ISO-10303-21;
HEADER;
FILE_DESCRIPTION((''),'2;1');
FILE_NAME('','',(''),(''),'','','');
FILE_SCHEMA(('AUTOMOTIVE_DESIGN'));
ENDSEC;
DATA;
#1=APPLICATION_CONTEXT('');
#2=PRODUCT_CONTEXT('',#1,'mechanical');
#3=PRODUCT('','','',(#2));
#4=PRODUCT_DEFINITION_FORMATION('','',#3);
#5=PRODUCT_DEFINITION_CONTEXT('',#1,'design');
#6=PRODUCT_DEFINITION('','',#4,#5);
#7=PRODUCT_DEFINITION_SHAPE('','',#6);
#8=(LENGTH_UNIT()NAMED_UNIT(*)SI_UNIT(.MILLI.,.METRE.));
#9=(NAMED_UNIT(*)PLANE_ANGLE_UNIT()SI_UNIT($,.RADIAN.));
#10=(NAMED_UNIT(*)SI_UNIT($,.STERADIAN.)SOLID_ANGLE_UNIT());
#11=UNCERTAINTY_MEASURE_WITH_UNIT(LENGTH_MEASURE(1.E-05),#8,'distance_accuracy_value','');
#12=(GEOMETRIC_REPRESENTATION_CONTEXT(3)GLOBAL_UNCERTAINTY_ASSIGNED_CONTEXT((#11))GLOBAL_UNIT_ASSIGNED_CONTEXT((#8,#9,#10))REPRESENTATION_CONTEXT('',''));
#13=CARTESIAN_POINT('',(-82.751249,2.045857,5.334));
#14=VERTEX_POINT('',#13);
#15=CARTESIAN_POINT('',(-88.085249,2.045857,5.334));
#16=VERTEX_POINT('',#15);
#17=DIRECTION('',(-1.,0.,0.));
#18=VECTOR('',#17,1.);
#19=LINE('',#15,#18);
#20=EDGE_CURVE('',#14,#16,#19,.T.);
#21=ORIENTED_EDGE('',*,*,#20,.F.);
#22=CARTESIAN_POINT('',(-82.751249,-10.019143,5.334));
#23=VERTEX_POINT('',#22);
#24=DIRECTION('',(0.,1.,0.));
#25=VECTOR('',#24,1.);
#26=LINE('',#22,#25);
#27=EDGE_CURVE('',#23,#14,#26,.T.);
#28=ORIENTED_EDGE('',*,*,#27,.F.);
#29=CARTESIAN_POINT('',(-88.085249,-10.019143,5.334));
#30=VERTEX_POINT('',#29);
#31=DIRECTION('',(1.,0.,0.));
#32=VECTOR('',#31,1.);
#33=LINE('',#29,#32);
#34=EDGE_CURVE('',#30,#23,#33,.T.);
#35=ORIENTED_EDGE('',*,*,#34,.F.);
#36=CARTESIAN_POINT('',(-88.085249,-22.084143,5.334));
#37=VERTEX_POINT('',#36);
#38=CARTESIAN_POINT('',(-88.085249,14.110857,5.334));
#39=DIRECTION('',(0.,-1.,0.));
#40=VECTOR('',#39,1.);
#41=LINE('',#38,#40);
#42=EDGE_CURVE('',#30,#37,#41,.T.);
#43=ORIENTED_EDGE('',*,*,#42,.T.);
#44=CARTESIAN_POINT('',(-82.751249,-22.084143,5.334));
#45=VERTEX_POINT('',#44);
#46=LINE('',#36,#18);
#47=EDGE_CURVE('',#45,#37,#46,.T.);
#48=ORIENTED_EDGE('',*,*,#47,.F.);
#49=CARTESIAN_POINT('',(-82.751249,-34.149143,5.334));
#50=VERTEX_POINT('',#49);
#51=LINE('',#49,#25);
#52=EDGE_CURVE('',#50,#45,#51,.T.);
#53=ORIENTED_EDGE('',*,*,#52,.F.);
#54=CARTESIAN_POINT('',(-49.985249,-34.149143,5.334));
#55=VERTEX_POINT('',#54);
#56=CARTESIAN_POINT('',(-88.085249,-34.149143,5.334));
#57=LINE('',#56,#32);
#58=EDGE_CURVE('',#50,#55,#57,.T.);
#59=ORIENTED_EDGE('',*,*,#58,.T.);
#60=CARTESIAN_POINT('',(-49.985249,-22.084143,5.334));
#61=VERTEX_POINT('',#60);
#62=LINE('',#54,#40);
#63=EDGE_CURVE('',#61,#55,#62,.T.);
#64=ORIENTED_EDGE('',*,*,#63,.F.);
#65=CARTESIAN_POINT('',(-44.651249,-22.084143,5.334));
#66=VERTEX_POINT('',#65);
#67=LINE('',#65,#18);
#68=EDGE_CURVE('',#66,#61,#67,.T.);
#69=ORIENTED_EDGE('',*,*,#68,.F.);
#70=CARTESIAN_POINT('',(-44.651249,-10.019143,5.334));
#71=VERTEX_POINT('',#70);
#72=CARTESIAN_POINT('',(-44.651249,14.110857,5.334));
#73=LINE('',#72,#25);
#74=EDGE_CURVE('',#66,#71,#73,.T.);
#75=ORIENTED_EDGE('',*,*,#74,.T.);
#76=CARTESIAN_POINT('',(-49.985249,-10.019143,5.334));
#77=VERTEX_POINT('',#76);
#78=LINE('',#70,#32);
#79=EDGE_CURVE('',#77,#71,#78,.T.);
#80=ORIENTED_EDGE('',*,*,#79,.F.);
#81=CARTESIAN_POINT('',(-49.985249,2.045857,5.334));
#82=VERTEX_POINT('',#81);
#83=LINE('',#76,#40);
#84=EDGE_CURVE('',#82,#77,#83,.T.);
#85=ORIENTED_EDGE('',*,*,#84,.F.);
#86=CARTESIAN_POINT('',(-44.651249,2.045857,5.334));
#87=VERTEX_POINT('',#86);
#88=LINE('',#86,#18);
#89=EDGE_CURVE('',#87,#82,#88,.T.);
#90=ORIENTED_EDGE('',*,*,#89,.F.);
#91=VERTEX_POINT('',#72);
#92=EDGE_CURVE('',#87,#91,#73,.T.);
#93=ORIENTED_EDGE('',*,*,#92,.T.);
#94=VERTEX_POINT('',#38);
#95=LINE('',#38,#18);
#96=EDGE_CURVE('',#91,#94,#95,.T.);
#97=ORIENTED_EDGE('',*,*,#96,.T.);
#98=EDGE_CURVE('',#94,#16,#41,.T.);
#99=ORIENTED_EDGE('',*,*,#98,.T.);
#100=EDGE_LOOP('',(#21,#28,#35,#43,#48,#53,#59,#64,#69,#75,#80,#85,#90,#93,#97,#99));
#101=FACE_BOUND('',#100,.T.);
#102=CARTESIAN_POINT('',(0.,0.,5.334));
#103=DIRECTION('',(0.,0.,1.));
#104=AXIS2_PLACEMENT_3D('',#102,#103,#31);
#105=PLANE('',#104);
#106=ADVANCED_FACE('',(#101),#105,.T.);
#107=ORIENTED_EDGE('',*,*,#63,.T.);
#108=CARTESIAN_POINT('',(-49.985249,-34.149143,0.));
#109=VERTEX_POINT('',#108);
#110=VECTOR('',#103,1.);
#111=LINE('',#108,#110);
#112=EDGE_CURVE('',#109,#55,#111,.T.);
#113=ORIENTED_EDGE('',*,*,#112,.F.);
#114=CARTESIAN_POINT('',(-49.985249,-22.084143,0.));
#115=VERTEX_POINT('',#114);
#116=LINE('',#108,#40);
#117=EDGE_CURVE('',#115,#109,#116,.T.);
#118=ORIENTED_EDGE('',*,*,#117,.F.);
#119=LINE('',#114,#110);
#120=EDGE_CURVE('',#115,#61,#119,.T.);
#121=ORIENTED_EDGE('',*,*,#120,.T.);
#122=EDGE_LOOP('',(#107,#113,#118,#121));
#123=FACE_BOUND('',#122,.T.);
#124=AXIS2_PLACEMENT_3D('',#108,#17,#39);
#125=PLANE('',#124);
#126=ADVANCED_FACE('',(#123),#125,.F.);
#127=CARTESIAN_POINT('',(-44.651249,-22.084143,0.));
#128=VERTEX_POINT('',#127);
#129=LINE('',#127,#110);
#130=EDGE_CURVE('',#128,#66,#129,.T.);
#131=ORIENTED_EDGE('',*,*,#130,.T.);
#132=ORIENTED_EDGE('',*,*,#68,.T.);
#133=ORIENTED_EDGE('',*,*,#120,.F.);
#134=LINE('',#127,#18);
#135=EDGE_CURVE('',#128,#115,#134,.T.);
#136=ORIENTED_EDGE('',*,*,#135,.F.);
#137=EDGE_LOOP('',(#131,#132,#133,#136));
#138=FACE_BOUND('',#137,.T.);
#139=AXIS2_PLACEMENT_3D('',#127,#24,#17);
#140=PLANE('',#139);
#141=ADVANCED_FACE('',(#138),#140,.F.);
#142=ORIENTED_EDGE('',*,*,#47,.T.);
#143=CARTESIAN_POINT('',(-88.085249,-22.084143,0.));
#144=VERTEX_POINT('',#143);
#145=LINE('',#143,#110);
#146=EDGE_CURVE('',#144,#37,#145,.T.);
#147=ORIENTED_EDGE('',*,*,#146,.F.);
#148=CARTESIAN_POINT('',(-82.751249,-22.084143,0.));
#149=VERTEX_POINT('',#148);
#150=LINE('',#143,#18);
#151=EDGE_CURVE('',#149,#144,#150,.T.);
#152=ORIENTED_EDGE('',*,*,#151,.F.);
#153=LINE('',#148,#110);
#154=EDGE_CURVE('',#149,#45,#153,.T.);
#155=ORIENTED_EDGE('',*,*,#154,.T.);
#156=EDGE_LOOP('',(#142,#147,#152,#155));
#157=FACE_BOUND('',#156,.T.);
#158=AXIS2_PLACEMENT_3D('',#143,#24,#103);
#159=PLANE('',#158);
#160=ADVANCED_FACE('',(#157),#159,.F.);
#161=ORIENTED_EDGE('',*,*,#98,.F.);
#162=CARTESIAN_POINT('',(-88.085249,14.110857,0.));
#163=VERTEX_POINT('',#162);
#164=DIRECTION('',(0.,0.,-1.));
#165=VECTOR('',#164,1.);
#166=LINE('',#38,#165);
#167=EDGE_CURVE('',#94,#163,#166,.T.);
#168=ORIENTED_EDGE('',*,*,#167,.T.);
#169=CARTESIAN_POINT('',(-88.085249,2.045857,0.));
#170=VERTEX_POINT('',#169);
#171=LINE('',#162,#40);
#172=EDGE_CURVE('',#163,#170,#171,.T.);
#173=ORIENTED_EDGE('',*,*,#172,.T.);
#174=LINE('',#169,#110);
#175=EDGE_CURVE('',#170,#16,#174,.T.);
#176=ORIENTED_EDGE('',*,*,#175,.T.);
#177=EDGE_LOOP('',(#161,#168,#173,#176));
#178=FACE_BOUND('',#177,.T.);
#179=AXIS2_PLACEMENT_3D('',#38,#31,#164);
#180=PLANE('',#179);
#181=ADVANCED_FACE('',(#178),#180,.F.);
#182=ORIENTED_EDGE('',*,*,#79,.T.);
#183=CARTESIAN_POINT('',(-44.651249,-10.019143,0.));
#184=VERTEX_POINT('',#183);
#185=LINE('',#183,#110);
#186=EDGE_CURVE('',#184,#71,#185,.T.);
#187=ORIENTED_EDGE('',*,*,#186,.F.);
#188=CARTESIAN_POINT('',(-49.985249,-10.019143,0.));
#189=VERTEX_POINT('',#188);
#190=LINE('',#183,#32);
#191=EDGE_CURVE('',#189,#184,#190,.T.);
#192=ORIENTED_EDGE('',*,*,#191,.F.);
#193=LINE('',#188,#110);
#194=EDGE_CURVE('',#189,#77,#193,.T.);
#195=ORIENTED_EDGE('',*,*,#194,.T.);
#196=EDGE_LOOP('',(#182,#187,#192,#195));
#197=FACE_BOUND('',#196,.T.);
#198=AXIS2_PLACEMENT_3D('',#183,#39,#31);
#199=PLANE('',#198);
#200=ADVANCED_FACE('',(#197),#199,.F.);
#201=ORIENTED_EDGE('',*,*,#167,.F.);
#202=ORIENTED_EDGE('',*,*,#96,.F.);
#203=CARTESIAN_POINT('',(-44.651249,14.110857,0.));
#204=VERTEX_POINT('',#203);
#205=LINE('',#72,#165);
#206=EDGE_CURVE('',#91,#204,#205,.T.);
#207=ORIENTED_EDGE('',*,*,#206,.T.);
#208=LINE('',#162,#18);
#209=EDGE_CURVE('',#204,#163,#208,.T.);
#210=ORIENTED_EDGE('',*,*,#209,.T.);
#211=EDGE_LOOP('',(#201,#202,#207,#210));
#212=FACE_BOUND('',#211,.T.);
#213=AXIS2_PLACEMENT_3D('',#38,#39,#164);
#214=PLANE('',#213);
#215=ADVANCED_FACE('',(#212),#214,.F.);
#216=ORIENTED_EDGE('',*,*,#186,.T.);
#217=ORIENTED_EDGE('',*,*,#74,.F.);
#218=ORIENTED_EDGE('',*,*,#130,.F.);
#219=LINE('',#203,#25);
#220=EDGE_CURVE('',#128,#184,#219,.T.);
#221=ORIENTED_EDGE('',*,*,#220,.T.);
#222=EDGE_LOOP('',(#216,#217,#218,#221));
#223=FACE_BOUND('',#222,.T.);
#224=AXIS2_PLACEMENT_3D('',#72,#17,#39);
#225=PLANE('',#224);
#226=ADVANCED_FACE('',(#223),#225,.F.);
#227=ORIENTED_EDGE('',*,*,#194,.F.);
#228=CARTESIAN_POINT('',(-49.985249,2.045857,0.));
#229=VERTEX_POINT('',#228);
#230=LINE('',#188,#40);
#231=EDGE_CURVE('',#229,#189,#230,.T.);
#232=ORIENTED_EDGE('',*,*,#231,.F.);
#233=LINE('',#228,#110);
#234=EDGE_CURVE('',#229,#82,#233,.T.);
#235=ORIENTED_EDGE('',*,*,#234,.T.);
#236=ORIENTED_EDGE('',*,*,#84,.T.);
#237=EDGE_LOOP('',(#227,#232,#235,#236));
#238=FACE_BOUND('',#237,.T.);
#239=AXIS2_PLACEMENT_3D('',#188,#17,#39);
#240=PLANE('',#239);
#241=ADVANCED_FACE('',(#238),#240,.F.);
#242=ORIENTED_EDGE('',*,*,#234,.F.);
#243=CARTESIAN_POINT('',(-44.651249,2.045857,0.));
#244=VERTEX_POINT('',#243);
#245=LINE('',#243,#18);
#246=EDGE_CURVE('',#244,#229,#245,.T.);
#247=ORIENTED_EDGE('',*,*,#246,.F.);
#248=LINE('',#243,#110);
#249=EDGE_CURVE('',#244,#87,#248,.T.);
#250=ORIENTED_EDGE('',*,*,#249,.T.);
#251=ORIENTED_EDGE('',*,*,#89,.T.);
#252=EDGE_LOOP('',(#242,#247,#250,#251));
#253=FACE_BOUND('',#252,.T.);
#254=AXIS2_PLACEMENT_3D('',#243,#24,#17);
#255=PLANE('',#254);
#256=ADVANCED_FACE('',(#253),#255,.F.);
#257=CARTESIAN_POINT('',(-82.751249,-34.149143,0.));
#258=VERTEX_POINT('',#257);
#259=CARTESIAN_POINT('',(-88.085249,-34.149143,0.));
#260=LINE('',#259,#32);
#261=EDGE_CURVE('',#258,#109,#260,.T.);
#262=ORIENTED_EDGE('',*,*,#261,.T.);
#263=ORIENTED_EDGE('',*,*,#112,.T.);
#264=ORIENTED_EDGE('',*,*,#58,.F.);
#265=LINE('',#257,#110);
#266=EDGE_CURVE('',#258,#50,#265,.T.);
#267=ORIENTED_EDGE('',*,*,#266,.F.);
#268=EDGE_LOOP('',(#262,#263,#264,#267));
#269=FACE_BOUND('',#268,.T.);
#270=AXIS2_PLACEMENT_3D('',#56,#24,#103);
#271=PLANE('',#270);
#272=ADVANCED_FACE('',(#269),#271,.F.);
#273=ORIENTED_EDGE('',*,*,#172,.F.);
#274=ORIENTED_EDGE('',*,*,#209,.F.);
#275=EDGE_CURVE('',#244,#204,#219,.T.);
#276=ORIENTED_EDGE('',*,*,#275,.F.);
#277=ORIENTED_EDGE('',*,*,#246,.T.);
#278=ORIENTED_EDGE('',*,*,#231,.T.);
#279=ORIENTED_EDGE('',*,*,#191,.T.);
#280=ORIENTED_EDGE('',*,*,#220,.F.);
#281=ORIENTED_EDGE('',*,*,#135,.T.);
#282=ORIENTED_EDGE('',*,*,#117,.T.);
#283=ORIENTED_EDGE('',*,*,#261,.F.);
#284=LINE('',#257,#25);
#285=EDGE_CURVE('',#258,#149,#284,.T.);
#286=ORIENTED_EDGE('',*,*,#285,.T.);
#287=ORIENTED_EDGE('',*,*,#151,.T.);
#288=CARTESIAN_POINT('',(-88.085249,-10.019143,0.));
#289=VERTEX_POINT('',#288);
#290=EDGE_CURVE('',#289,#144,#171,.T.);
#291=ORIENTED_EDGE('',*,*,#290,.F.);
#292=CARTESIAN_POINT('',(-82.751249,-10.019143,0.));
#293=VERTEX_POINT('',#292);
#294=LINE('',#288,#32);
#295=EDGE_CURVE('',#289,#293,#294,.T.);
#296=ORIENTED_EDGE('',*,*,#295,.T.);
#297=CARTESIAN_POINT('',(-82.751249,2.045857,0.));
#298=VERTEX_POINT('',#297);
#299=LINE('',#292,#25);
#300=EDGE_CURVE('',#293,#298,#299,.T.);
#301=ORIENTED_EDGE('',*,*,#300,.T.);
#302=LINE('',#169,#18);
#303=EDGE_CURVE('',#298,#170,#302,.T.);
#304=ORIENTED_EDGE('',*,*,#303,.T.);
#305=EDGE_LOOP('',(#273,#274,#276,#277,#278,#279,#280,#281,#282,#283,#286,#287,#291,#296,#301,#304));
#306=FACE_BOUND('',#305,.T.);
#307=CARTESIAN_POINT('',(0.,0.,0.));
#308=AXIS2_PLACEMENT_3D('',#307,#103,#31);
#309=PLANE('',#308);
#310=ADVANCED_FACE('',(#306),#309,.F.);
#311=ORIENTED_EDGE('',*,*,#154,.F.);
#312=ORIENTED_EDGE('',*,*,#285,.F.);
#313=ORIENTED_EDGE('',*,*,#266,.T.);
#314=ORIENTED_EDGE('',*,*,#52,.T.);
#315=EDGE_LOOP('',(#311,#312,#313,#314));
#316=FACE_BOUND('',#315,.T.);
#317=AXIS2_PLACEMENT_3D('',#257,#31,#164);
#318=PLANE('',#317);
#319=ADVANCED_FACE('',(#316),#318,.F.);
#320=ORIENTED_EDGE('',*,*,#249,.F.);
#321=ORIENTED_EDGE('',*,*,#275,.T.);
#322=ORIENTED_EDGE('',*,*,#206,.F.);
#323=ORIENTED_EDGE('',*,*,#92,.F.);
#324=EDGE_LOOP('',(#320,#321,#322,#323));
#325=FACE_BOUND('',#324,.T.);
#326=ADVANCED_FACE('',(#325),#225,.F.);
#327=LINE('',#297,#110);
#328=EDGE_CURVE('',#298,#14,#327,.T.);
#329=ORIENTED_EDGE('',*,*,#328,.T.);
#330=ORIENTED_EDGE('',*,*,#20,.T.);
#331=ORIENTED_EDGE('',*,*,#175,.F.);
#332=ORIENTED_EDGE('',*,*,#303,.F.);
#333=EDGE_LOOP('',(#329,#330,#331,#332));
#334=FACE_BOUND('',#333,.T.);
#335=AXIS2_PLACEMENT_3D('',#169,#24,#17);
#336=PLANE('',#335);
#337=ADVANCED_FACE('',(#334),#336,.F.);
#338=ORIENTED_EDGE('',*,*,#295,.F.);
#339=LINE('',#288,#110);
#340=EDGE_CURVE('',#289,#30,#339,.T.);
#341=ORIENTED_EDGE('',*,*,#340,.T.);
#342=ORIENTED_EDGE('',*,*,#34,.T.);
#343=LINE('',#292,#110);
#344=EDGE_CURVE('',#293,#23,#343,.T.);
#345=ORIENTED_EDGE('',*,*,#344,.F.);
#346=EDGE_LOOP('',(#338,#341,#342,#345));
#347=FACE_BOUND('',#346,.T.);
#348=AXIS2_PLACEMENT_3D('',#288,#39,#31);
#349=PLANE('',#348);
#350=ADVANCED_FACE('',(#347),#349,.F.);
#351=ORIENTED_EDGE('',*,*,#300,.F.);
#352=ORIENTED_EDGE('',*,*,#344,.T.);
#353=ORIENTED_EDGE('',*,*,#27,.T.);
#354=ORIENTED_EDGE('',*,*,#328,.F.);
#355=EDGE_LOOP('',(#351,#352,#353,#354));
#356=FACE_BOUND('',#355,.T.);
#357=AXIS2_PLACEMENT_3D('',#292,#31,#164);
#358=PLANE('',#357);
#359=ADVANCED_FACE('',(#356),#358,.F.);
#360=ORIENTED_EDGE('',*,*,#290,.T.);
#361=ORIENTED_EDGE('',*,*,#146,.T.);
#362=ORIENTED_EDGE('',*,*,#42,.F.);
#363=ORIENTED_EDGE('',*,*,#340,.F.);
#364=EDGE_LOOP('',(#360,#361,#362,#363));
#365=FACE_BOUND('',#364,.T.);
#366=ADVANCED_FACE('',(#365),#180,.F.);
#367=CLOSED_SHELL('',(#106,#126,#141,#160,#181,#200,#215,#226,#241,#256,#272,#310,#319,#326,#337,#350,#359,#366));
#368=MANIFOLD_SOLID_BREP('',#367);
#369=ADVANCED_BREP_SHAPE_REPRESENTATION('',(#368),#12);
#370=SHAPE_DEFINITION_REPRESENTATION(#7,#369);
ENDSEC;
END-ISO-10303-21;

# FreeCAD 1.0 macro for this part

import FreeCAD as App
import Part
import Sketcher
Q = App.Units.Quantity

doc = App.newDocument("Part")
params = doc.addObject("Spreadsheet::Sheet", "Params")
for row, (alias, value) in enumerate([
    ("sketch1_height", "1.9 in"),
    ("sketch1_width", "1.71 in"),
    ("pad1_length", "0.21 in"),
    ("sketch2_width", "0.21 in"),
    ("sketch2_height", "0.475 in"),
], start=1):
    params.set(f"A{row}", alias)
    params.set(f"B{row}", "=" + value)
    params.setAlias(f"B{row}", alias)

body = doc.addObject("PartDesign::Body", "Body")

# Sketch on XY plane
sketch1 = body.newObject("Sketcher::SketchObject", "Sketch")
sketch1.AttachmentSupport = (doc.getObject("XY_Plane"), [""])
sketch1.MapMode = "FlatFace"
sketch1.addGeometry([
    Part.LineSegment(App.Vector(-88.085249, 14.110857, 0), App.Vector(-88.085249, -34.149143, 0)),
    Part.LineSegment(App.Vector(-88.085249, -34.149143, 0), App.Vector(-44.651249, -34.149143, 0)),
    Part.LineSegment(App.Vector(-44.651249, -34.149143, 0), App.Vector(-44.651249, 14.110857, 0)),
    Part.LineSegment(App.Vector(-44.651249, 14.110857, 0), App.Vector(-88.085249, 14.110857, 0)),
], False)
sketch1.addConstraint([
    Sketcher.Constraint("Coincident", 0, 2, 1, 1),
    Sketcher.Constraint("Coincident", 1, 2, 2, 1),
    Sketcher.Constraint("Coincident", 2, 2, 3, 1),
    Sketcher.Constraint("Coincident", 3, 2, 0, 1),
    Sketcher.Constraint("Vertical", 0),
    Sketcher.Constraint("Horizontal", 1),
    Sketcher.Constraint("Vertical", 2),
    Sketcher.Constraint("Horizontal", 3),
    Sketcher.Constraint("DistanceY", 0, 2, 0, 1, Q("1.9 in")),
    Sketcher.Constraint("DistanceX", 1, 1, 1, 2, Q("1.71 in")),
    Sketcher.Constraint("DistanceX", 0, 2, -1, 1, 88.085249),
    Sketcher.Constraint("DistanceY", 0, 2, -1, 1, 34.149143),
])
sketch1.setExpression("Constraints[8]", "Params.sketch1_height")
sketch1.setExpression("Constraints[9]", "Params.sketch1_width")
pad1 = body.newObject("PartDesign::Pad", "Pad")
pad1.Profile = sketch1
pad1.setExpression("Length", "Params.pad1_length")

# Sketch on XY plane
sketch2 = body.newObject("Sketcher::SketchObject", "Sketch001")
sketch2.AttachmentSupport = (doc.getObject("XY_Plane"), [""])
sketch2.MapMode = "FlatFace"
sketch2.AttachmentOffset = App.Placement(App.Vector(0, 0, 0.21 * 25.4), App.Rotation())
sketch2.addGeometry([
    Part.LineSegment(App.Vector(-88.085249, -22.084143, 0), App.Vector(-88.085249, -34.149143, 0)),  # 0
    Part.LineSegment(App.Vector(-88.085249, -34.149143, 0), App.Vector(-82.751249, -34.149143, 0)),  # 1
    Part.LineSegment(App.Vector(-82.751249, -34.149143, 0), App.Vector(-82.751249, -22.084143, 0)),  # 2
    Part.LineSegment(App.Vector(-82.751249, -22.084143, 0), App.Vector(-88.085249, -22.084143, 0)),  # 3
    Part.LineSegment(App.Vector(-88.085249, 2.045857, 0), App.Vector(-88.085249, -10.019143, 0)),  # 4
    Part.LineSegment(App.Vector(-88.085249, -10.019143, 0), App.Vector(-82.751249, -10.019143, 0)),  # 5
    Part.LineSegment(App.Vector(-82.751249, -10.019143, 0), App.Vector(-82.751249, 2.045857, 0)),  # 6
    Part.LineSegment(App.Vector(-82.751249, 2.045857, 0), App.Vector(-88.085249, 2.045857, 0)),  # 7
    Part.LineSegment(App.Vector(-49.985249, 2.045857, 0), App.Vector(-49.985249, -10.019143, 0)),  # 8
    Part.LineSegment(App.Vector(-49.985249, -10.019143, 0), App.Vector(-44.651249, -10.019143, 0)),  # 9
    Part.LineSegment(App.Vector(-44.651249, -10.019143, 0), App.Vector(-44.651249, 2.045857, 0)),  # 10
    Part.LineSegment(App.Vector(-44.651249, 2.045857, 0), App.Vector(-49.985249, 2.045857, 0)),  # 11
    Part.LineSegment(App.Vector(-49.985249, -22.084143, 0), App.Vector(-49.985249, -34.149143, 0)),  # 12
    Part.LineSegment(App.Vector(-49.985249, -34.149143, 0), App.Vector(-44.651249, -34.149143, 0)),  # 13
    Part.LineSegment(App.Vector(-44.651249, -34.149143, 0), App.Vector(-44.651249, -22.084143, 0)),  # 14
    Part.LineSegment(App.Vector(-44.651249, -22.084143, 0), App.Vector(-49.985249, -22.084143, 0)),  # 15
], False)
sketch2.addConstraint([
    Sketcher.Constraint("Coincident", 0, 2, 1, 1),
    Sketcher.Constraint("Coincident", 1, 2, 2, 1),
    Sketcher.Constraint("Coincident", 2, 2, 3, 1),
    Sketcher.Constraint("Coincident", 3, 2, 0, 1),
    Sketcher.Constraint("Coincident", 4, 2, 5, 1),
    Sketcher.Constraint("Coincident", 5, 2, 6, 1),
    Sketcher.Constraint("Coincident", 6, 2, 7, 1),
    Sketcher.Constraint("Coincident", 7, 2, 4, 1),
    Sketcher.Constraint("Coincident", 8, 2, 9, 1),
    Sketcher.Constraint("Coincident", 9, 2, 10, 1),
    Sketcher.Constraint("Coincident", 10, 2, 11, 1),
    Sketcher.Constraint("Coincident", 11, 2, 8, 1),
    Sketcher.Constraint("Coincident", 12, 2, 13, 1),
    Sketcher.Constraint("Coincident", 13, 2, 14, 1),
    Sketcher.Constraint("Coincident", 14, 2, 15, 1),
    Sketcher.Constraint("Coincident", 15, 2, 12, 1),
    Sketcher.Constraint("Vertical", 0),
    Sketcher.Constraint("Horizontal", 1),
    Sketcher.Constraint("Vertical", 2),
    Sketcher.Constraint("Horizontal", 3),
    Sketcher.Constraint("Vertical", 4),
    Sketcher.Constraint("Horizontal", 5),
    Sketcher.Constraint("Vertical", 6),
    Sketcher.Constraint("Horizontal", 7),
    Sketcher.Constraint("Vertical", 8),
    Sketcher.Constraint("Horizontal", 9),
    Sketcher.Constraint("Vertical", 10),
    Sketcher.Constraint("Horizontal", 11),
    Sketcher.Constraint("Vertical", 12),
    Sketcher.Constraint("Horizontal", 13),
    Sketcher.Constraint("Vertical", 14),
    Sketcher.Constraint("Horizontal", 15),
    Sketcher.Constraint("Horizontal", 5, 2, 8, 2),
    Sketcher.Constraint("Horizontal", 7, 2, 10, 2),
    Sketcher.Constraint("Horizontal", 1, 2, 12, 2),
    Sketcher.Constraint("Horizontal", 3, 2, 14, 2),
    Sketcher.Constraint("Vertical", 3, 2, 4, 2),
    Sketcher.Constraint("Vertical", 2, 2, 5, 2),
    Sketcher.Constraint("Vertical", 11, 2, 12, 2),
    Sketcher.Constraint("Vertical", 10, 2, 13, 2),
    Sketcher.Constraint("Equal", 7, 9),
    Sketcher.Constraint("Equal", 2, 4),
    Sketcher.Constraint("DistanceX", 1, 1, 1, 2, Q("0.21 in")),
    Sketcher.Constraint("DistanceX", 4, 2, 8, 2, Q("1.5 in")),
    Sketcher.Constraint("DistanceY", 0, 2, 0, 1, Q("0.475 in")),
    Sketcher.Constraint("DistanceY", 0, 2, 4, 2, Q("0.95 in")),
    Sketcher.Constraint("DistanceX", 0, 2, -1, 1, 88.085249),
    Sketcher.Constraint("DistanceY", 0, 2, -1, 1, 34.149143),
])
sketch2.setExpression("Constraints[42]", "Params.sketch2_width")
sketch2.setExpression("Constraints[44]", "Params.sketch2_height")
pocket1 = body.newObject("PartDesign::Pocket", "Pocket")
pocket1.Profile = sketch2
pocket1.Type = "ThroughAll"

doc.recompute()
